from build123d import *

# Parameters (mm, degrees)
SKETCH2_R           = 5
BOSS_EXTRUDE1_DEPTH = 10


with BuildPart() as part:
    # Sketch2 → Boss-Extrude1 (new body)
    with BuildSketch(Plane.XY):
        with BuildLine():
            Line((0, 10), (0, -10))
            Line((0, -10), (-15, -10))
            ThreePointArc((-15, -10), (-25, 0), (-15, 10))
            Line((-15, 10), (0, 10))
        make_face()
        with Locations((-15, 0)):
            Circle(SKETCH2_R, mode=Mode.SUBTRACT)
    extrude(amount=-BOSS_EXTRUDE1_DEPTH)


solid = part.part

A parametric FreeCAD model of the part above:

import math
import FreeCAD as App
import Part
import Sketcher
Q = App.Units.Quantity

doc = App.newDocument("Part")
params = doc.addObject("Spreadsheet::Sheet", "Params")
for row, (alias, value) in enumerate([
    ("sketch1_diameter", "10 mm"),
    ("sketch1_radius", "10 mm"),
    ("sketch1_width", "15 mm"),
    ("pad1_length", "10 mm"),
], start=1):
    params.set(f"A{row}", alias)
    params.set(f"B{row}", "=" + value)
    params.setAlias(f"B{row}", alias)

body = doc.addObject("PartDesign::Body", "Body")

# Sketch on XY plane
sketch1 = body.newObject("Sketcher::SketchObject", "Sketch")
sketch1.AttachmentSupport = (doc.getObject("XY_Plane"), [""])
sketch1.MapMode = "FlatFace"
sketch1.addGeometry([
    Part.LineSegment(App.Vector(0, -10, 0), App.Vector(0, 10, 0)),  # 0
    Part.LineSegment(App.Vector(0, 10, 0), App.Vector(-15, 10, 0)),  # 1
    Part.ArcOfCircle(Part.Circle(App.Vector(-15, 0, 0), App.Vector(0, 0, 1), 10), math.radians(90), math.radians(270)),  # 2
    Part.LineSegment(App.Vector(-15, -10, 0), App.Vector(0, -10, 0)),  # 3
    Part.Circle(App.Vector(-15, 0, 0), App.Vector(0, 0, 1), 5),  # 4
], False)
sketch1.addConstraint([
    Sketcher.Constraint("Coincident", 0, 2, 1, 1),
    Sketcher.Constraint("Tangent", 1, 2, 2, 1),
    Sketcher.Constraint("Tangent", 2, 2, 3, 1),
    Sketcher.Constraint("Coincident", 3, 2, 0, 1),
    Sketcher.Constraint("Vertical", 0),
    Sketcher.Constraint("Horizontal", 1),
    Sketcher.Constraint("Horizontal", 3),
    Sketcher.Constraint("Coincident", 4, 3, 2, 3),
    Sketcher.Constraint("Symmetric", 0, 2, 3, 2, -1, 1),
    Sketcher.Constraint("Diameter", 4, Q("10 mm")),
    Sketcher.Constraint("Radius", 2, Q("10 mm")),
    Sketcher.Constraint("DistanceX", 1, 2, 1, 1, Q("15 mm")),
])
sketch1.setExpression("Constraints[9]", "Params.sketch1_diameter")
sketch1.setExpression("Constraints[10]", "Params.sketch1_radius")
sketch1.setExpression("Constraints[11]", "Params.sketch1_width")
pad1 = body.newObject("PartDesign::Pad", "Pad")
pad1.Profile = sketch1
pad1.setExpression("Length", "Params.pad1_length")
pad1.Reversed = True

doc.recompute()
